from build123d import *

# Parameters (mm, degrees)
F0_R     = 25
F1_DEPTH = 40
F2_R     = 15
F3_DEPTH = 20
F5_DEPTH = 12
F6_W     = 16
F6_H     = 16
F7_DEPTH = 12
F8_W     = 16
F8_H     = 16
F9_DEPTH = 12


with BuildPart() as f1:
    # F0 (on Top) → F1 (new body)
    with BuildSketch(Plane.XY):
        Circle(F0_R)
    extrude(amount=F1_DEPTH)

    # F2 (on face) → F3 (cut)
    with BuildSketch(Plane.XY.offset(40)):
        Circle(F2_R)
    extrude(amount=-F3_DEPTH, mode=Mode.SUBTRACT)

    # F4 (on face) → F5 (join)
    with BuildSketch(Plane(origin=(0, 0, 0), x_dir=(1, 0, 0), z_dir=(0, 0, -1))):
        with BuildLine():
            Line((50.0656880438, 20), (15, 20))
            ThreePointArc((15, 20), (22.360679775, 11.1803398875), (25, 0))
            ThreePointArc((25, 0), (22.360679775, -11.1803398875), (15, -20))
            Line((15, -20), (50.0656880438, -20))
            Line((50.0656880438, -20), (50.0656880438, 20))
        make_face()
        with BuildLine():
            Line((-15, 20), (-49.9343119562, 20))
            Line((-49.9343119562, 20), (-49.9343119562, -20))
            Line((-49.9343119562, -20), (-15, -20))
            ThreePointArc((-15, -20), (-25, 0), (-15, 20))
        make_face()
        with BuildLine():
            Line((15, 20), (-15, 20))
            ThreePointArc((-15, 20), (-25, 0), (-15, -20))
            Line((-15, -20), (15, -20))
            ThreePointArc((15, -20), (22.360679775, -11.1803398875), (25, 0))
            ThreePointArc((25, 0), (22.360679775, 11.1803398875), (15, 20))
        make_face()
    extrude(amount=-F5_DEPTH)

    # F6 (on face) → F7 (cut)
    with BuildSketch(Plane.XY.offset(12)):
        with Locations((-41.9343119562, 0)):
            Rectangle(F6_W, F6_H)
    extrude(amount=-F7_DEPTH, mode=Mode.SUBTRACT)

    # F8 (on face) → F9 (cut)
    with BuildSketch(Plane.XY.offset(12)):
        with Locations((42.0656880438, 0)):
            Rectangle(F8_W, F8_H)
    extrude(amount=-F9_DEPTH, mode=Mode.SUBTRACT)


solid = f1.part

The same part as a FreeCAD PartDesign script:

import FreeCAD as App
import Part
import Sketcher

doc = App.newDocument("Part")
body = doc.addObject("PartDesign::Body", "Body")

# Sketch on XY plane
sketch1 = body.newObject("Sketcher::SketchObject", "Sketch")
sketch1.AttachmentSupport = (doc.getObject("XY_Plane"), [""])
sketch1.MapMode = "FlatFace"
sketch1.addGeometry(Part.Circle(App.Vector(0, 0, 0), App.Vector(0, 0, 1), 25), False)
sketch1.addConstraint([
    Sketcher.Constraint("Coincident", 0, 3, -1, 1),
    Sketcher.Constraint("Diameter", 0, 50.0),
])
pad1 = body.newObject("PartDesign::Pad", "Pad")
pad1.Profile = sketch1
pad1.Length = 40

# Sketch on XY plane
sketch2 = body.newObject("Sketcher::SketchObject", "Sketch001")
sketch2.AttachmentSupport = (doc.getObject("XY_Plane"), [""])
sketch2.MapMode = "FlatFace"
sketch2.AttachmentOffset = App.Placement(App.Vector(0, 0, 40), App.Rotation())
sketch2.addGeometry(Part.Circle(App.Vector(0, 0, 0), App.Vector(0, 0, 1), 15), False)
sketch2.addConstraint([
    Sketcher.Constraint("Coincident", 0, 3, -1, 1),
    Sketcher.Constraint("Diameter", 0, 30.0),
])
pocket1 = body.newObject("PartDesign::Pocket", "Pocket")
pocket1.Profile = sketch2
pocket1.Length = 20

# Sketch on XY plane
sketch3 = body.newObject("Sketcher::SketchObject", "Sketch002")
sketch3.AttachmentSupport = (doc.getObject("XY_Plane"), [""])
sketch3.MapMode = "FlatFace"
sketch3.addGeometry([
    Part.LineSegment(App.Vector(50, -20, 0), App.Vector(-50, -20, 0)),
    Part.LineSegment(App.Vector(-50, -20, 0), App.Vector(-50, 20, 0)),
    Part.LineSegment(App.Vector(-50, 20, 0), App.Vector(50, 20, 0)),
    Part.LineSegment(App.Vector(50, 20, 0), App.Vector(50, -20, 0)),
], False)
sketch3.addConstraint([
    Sketcher.Constraint("Coincident", 0, 2, 1, 1),
    Sketcher.Constraint("Coincident", 1, 2, 2, 1),
    Sketcher.Constraint("Coincident", 2, 2, 3, 1),
    Sketcher.Constraint("Coincident", 3, 2, 0, 1),
    Sketcher.Constraint("Horizontal", 0),
    Sketcher.Constraint("Vertical", 1),
    Sketcher.Constraint("Horizontal", 2),
    Sketcher.Constraint("Vertical", 3),
    Sketcher.Constraint("DistanceX", 0, 2, 0, 1, 100.0),
    Sketcher.Constraint("DistanceY", 1, 1, 1, 2, 40.0),
    Sketcher.Constraint("DistanceY", 0, 2, -1, 1, 20.0),
    Sketcher.Constraint("DistanceX", 0, 2, -1, 1, 49.934312),
])
pad2 = body.newObject("PartDesign::Pad", "Pad001")
pad2.Profile = sketch3
pad2.Length = 12

# Sketch on XY plane
sketch4 = body.newObject("Sketcher::SketchObject", "Sketch003")
sketch4.AttachmentSupport = (doc.getObject("XY_Plane"), [""])
sketch4.MapMode = "FlatFace"
sketch4.AttachmentOffset = App.Placement(App.Vector(0, 0, 12), App.Rotation())
sketch4.addGeometry([
    Part.LineSegment(App.Vector(-50, 8, 0), App.Vector(-50, -8, 0)),
    Part.LineSegment(App.Vector(-50, -8, 0), App.Vector(-34, -8, 0)),
    Part.LineSegment(App.Vector(-34, -8, 0), App.Vector(-34, 8, 0)),
    Part.LineSegment(App.Vector(-34, 8, 0), App.Vector(-50, 8, 0)),
], False)
sketch4.addConstraint([
    Sketcher.Constraint("Coincident", 0, 2, 1, 1),
    Sketcher.Constraint("Coincident", 1, 2, 2, 1),
    Sketcher.Constraint("Coincident", 2, 2, 3, 1),
    Sketcher.Constraint("Coincident", 3, 2, 0, 1),
    Sketcher.Constraint("Vertical", 0),
    Sketcher.Constraint("Horizontal", 1),
    Sketcher.Constraint("Vertical", 2),
    Sketcher.Constraint("Horizontal", 3),
    Sketcher.Constraint("Equal", 3, 0),
    Sketcher.Constraint("DistanceX", 1, 1, 1, 2, 16.0),
    Sketcher.Constraint("DistanceY", 0, 2, -1, 1, 8.0),
    Sketcher.Constraint("DistanceX", 0, 2, -1, 1, 49.934312),
])
pocket2 = body.newObject("PartDesign::Pocket", "Pocket001")
pocket2.Profile = sketch4
pocket2.Length = 12

# Sketch on XY plane
sketch5 = body.newObject("Sketcher::SketchObject", "Sketch004")
sketch5.AttachmentSupport = (doc.getObject("XY_Plane"), [""])
sketch5.MapMode = "FlatFace"
sketch5.AttachmentOffset = App.Placement(App.Vector(0, 0, 12), App.Rotation())
sketch5.addGeometry([
    Part.LineSegment(App.Vector(34, 8, 0), App.Vector(34, -8, 0)),
    Part.LineSegment(App.Vector(34, -8, 0), App.Vector(50, -8, 0)),
    Part.LineSegment(App.Vector(50, -8, 0), App.Vector(50, 8, 0)),
    Part.LineSegment(App.Vector(50, 8, 0), App.Vector(34, 8, 0)),
], False)
sketch5.addConstraint([
    Sketcher.Constraint("Coincident", 0, 2, 1, 1),
    Sketcher.Constraint("Coincident", 1, 2, 2, 1),
    Sketcher.Constraint("Coincident", 2, 2, 3, 1),
    Sketcher.Constraint("Coincident", 3, 2, 0, 1),
    Sketcher.Constraint("Vertical", 0),
    Sketcher.Constraint("Horizontal", 1),
    Sketcher.Constraint("Vertical", 2),
    Sketcher.Constraint("Horizontal", 3),
    Sketcher.Constraint("Equal", 3, 0),
    Sketcher.Constraint("DistanceX", 1, 1, 1, 2, 16.0),
    Sketcher.Constraint("DistanceY", 0, 2, -1, 1, 8.0),
    Sketcher.Constraint("DistanceX", -1, 1, 0, 2, 34.065688),
])
pocket3 = body.newObject("PartDesign::Pocket", "Pocket002")
pocket3.Profile = sketch5
pocket3.Length = 12

doc.recompute()
